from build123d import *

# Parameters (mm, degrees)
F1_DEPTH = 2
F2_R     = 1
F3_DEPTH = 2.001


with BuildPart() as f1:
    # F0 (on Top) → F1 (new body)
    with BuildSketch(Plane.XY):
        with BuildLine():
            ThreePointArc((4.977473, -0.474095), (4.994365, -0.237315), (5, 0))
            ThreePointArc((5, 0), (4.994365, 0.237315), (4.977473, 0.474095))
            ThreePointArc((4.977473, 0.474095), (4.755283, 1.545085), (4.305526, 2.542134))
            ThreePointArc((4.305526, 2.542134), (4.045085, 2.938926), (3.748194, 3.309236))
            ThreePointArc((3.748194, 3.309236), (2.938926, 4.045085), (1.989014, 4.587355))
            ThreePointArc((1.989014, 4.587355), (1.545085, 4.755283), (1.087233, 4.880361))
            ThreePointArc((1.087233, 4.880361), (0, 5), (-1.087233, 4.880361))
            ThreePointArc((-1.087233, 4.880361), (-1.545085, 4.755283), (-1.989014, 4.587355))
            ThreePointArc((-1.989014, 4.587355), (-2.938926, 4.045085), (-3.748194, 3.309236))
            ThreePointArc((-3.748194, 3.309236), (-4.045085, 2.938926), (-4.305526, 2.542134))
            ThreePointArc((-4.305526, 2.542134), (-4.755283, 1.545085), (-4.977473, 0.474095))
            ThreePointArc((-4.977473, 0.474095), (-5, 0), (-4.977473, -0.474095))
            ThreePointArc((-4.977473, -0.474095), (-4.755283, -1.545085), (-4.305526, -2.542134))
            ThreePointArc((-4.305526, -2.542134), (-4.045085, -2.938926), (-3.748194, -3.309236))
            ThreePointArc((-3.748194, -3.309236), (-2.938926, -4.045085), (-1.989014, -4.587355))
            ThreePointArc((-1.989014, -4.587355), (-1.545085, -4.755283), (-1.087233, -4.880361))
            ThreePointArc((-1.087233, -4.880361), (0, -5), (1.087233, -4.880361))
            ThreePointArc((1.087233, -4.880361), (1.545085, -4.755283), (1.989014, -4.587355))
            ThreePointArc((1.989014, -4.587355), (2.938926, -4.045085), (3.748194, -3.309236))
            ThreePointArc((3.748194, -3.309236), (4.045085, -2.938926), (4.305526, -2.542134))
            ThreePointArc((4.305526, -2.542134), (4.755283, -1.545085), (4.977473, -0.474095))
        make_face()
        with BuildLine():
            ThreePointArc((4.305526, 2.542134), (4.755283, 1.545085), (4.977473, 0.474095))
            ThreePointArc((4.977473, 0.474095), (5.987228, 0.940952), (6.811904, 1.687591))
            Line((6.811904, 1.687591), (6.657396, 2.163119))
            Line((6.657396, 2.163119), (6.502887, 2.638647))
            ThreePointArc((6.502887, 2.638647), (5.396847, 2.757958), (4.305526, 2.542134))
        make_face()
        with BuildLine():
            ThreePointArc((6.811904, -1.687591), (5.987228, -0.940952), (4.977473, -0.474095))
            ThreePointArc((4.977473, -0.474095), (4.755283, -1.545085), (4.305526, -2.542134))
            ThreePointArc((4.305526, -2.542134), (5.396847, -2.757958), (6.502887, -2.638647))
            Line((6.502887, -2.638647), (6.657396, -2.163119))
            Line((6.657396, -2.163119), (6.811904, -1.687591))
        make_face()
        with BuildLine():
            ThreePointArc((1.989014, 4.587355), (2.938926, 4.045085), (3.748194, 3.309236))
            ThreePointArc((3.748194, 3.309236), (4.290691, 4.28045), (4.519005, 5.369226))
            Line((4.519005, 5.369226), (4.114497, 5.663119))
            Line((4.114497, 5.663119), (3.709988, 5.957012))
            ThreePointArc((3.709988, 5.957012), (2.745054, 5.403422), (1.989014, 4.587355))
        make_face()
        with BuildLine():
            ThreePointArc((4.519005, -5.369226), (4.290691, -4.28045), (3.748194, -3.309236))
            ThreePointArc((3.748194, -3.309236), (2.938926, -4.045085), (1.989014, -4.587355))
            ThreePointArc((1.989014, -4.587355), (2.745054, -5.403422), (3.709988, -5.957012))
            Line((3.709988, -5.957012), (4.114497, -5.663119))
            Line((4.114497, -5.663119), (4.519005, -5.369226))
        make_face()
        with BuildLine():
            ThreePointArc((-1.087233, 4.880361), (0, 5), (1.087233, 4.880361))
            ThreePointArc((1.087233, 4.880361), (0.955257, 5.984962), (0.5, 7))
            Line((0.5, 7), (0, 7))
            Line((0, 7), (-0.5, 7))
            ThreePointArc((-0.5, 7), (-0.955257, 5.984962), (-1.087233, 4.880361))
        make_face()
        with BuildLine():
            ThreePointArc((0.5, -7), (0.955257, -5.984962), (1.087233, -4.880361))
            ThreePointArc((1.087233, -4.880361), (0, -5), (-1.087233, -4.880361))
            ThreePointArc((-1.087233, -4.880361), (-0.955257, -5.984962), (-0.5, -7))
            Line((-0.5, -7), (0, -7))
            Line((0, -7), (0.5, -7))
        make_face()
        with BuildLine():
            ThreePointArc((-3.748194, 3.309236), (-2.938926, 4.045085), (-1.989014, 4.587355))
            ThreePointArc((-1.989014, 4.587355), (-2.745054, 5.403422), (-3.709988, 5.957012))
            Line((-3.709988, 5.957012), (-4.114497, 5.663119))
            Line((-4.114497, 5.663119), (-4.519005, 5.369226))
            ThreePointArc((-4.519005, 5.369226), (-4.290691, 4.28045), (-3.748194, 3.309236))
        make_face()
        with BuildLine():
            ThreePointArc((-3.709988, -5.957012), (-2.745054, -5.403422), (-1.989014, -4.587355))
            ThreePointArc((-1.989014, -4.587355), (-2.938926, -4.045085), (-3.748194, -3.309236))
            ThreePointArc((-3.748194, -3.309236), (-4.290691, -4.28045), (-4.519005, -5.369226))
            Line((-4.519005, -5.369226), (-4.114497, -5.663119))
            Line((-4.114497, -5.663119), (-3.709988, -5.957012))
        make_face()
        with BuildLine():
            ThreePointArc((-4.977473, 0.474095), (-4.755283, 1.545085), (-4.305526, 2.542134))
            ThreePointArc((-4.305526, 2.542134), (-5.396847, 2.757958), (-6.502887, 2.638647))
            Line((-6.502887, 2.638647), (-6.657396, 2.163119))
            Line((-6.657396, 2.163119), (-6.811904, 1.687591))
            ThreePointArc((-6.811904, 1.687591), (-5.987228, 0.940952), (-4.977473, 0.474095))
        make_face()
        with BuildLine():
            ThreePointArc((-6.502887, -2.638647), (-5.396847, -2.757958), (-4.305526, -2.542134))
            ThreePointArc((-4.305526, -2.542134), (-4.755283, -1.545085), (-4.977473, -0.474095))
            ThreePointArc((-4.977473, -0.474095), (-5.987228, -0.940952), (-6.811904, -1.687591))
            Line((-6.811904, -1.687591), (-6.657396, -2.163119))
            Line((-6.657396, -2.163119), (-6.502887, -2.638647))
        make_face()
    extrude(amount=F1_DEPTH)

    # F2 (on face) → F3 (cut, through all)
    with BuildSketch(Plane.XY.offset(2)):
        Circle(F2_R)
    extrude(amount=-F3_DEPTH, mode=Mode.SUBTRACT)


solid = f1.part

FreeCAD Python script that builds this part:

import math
import FreeCAD as App
import Part
import Sketcher

V = App.Vector
Q = App.Units.Quantity

doc = App.newDocument("Part")
params = doc.addObject("Spreadsheet::Sheet", "Params")
for row, (alias, value) in enumerate([
    ("sketch1_width", "1 mm"),
    ("sketch1_length", "0.5 mm"),
    ("pad1_length", "2 mm"),
    ("sketch2_diameter", "2 mm"),
], start=1):
    params.set(f"A{row}", alias)
    params.set(f"B{row}", "=" + value)
    params.setAlias(f"B{row}", alias)

body = doc.addObject("PartDesign::Body", "Body")

# Sketch on XY plane
sketch1 = body.newObject("Sketcher::SketchObject", "Sketch")
sketch1.AttachmentSupport = (doc.getObject("XY_Plane"), [""])
sketch1.MapMode = "FlatFace"
sketch1.addGeometry(Part.ArcOfCircle(Part.Circle(V(-0.000142, 0.000003, 0), V(0, 0, 1), 5.000142), math.radians(-5.440782), math.radians(-0.000035)), False)
sketch1.addGeometry(Part.ArcOfCircle(Part.Circle(V(-0.000142, -0.000003, 0), V(0, 0, 1), 5.000142), math.radians(0.000035), math.radians(5.440782)), False)
sketch1.addGeometry(Part.ArcOfCircle(Part.Circle(V(3.951843, 4.017824, 0), V(0, 0, 1), 3.689164), math.radians(-73.858449), math.radians(-39.171415)), False)
sketch1.addGeometry(Part.LineSegment(V(6.811904, 1.687591, 0), V(6.657396, 2.163119, 0)), False)
sketch1.addGeometry(Part.LineSegment(V(6.657396, 2.163119, 0), V(6.502887, 2.638647, 0)), False)
sketch1.addGeometry(Part.ArcOfCircle(Part.Circle(V(5.558727, -0.927655, 0), V(0, 0, 1), 3.689166), math.radians(75.171433), math.radians(109.858452)), False)
sketch1.addGeometry(Part.ArcOfCircle(Part.Circle(V(-0.000029, -0.00002, 0), V(0, 0, 1), 5.000035), math.radians(30.559125), math.radians(41.440853)), False)
sketch1.addGeometry(Part.ArcOfCircle(Part.Circle(V(0.835485, 5.573326, 0), V(0, 0, 1), 3.68917), math.radians(-37.858427), math.radians(-3.171453)), False)
sketch1.addGeometry(Part.LineSegment(V(4.519005, 5.369226, 0), V(4.114497, 5.663119, 0)), False)
sketch1.addGeometry(Part.LineSegment(V(4.114497, 5.663119, 0), V(3.709988, 5.957012, 0)), False)
sketch1.addGeometry(Part.ArcOfCircle(Part.Circle(V(5.042379, 2.516833, 0), V(0, 0, 1), 3.689187), math.radians(111.17152), math.radians(145.858345)), False)
sketch1.addGeometry(Part.ArcOfCircle(Part.Circle(V(0.000024, 0.000068, 0), V(0, 0, 1), 4.999929), math.radians(66.559052), math.radians(77.440995)), False)
sketch1.addGeometry(Part.ArcOfCircle(Part.Circle(V(-2.599994, 5.000002, 0), V(0, 0, 1), 3.689167), math.radians(-1.858441), math.radians(32.828574)), False)
sketch1.addGeometry(Part.LineSegment(V(0.5, 7, 0), V(-0.5, 7, 0)), False)
sketch1.addGeometry(Part.ArcOfCircle(Part.Circle(V(2.599994, 5.000002, 0), V(0, 0, 1), 3.689167), math.radians(147.171426), math.radians(181.858441)), False)
sketch1.addGeometry(Part.ArcOfCircle(Part.Circle(V(-0.000024, 0.000068, 0), V(0, 0, 1), 4.999929), math.radians(102.559005), math.radians(113.440948)), False)
sketch1.addGeometry(Part.ArcOfCircle(Part.Circle(V(-5.042379, 2.516833, 0), V(0, 0, 1), 3.689187), math.radians(34.141655), math.radians(68.82848)), False)
sketch1.addGeometry(Part.LineSegment(V(-3.709988, 5.957012, 0), V(-4.114497, 5.663119, 0)), False)
sketch1.addGeometry(Part.LineSegment(V(-4.114497, 5.663119, 0), V(-4.519005, 5.369226, 0)), False)
sketch1.addGeometry(Part.ArcOfCircle(Part.Circle(V(-0.835485, 5.573326, 0), V(0, 0, 1), 3.68917), math.radians(-176.828547), math.radians(-142.141573)), False)
sketch1.addGeometry(Part.ArcOfCircle(Part.Circle(V(0.000029, -0.00002, 0), V(0, 0, 1), 5.000035), math.radians(138.559147), math.radians(149.440875)), False)
sketch1.addGeometry(Part.ArcOfCircle(Part.Circle(V(-5.558727, -0.927655, 0), V(0, 0, 1), 3.689166), math.radians(70.141548), math.radians(104.828567)), False)
sketch1.addGeometry(Part.LineSegment(V(-6.502887, 2.638647, 0), V(-6.657396, 2.163119, 0)), False)
sketch1.addGeometry(Part.LineSegment(V(-6.657396, 2.163119, 0), V(-6.811904, 1.687591, 0)), False)
sketch1.addGeometry(Part.ArcOfCircle(Part.Circle(V(-3.951843, 4.017824, 0), V(0, 0, 1), 3.689164), math.radians(-140.828585), math.radians(-106.141551)), False)
sketch1.addGeometry(Part.ArcOfCircle(Part.Circle(V(0.000078, 0, 0), V(0, 0, 1), 5.000078), math.radians(174.559183), math.radians(185.440817)), False)
sketch1.addGeometry(Part.ArcOfCircle(Part.Circle(V(-3.951843, -4.017824, 0), V(0, 0, 1), 3.689164), math.radians(106.141551), math.radians(140.828585)), False)
sketch1.addGeometry(Part.LineSegment(V(-6.811904, -1.687591, 0), V(-6.657396, -2.163119, 0)), False)
sketch1.addGeometry(Part.LineSegment(V(-6.657396, -2.163119, 0), V(-6.502887, -2.638647, 0)), False)
sketch1.addGeometry(Part.ArcOfCircle(Part.Circle(V(-5.558727, 0.927655, 0), V(0, 0, 1), 3.689166), math.radians(-104.828567), math.radians(-70.141548)), False)
sketch1.addGeometry(Part.ArcOfCircle(Part.Circle(V(0.000029, 0.00002, 0), V(0, 0, 1), 5.000035), math.radians(-149.440875), math.radians(-138.559147)), False)
sketch1.addGeometry(Part.ArcOfCircle(Part.Circle(V(-0.835485, -5.573326, 0), V(0, 0, 1), 3.68917), math.radians(142.141573), math.radians(176.828547)), False)
sketch1.addGeometry(Part.LineSegment(V(-4.519005, -5.369226, 0), V(-4.114497, -5.663119, 0)), False)
sketch1.addGeometry(Part.LineSegment(V(-4.114497, -5.663119, 0), V(-3.709988, -5.957012, 0)), False)
sketch1.addGeometry(Part.ArcOfCircle(Part.Circle(V(-5.042379, -2.516833, 0), V(0, 0, 1), 3.689187), math.radians(-68.82848), math.radians(-34.141655)), False)
sketch1.addGeometry(Part.ArcOfCircle(Part.Circle(V(-0.000024, -0.000068, 0), V(0, 0, 1), 4.999929), math.radians(-113.440948), math.radians(-102.559005)), False)
sketch1.addGeometry(Part.ArcOfCircle(Part.Circle(V(2.599994, -5.000002, 0), V(0, 0, 1), 3.689167), math.radians(178.141559), math.radians(212.828574)), False)
sketch1.addGeometry(Part.LineSegment(V(-0.5, -7, 0), V(0.5, -7, 0)), False)
sketch1.addGeometry(Part.ArcOfCircle(Part.Circle(V(-2.599994, -5.000002, 0), V(0, 0, 1), 3.689167), math.radians(-32.828574), math.radians(1.858441)), False)
sketch1.addGeometry(Part.ArcOfCircle(Part.Circle(V(0.000024, -0.000068, 0), V(0, 0, 1), 4.999929), math.radians(-77.440995), math.radians(-66.559052)), False)
sketch1.addGeometry(Part.ArcOfCircle(Part.Circle(V(5.042379, -2.516833, 0), V(0, 0, 1), 3.689187), math.radians(-145.858345), math.radians(-111.17152)), False)
sketch1.addGeometry(Part.LineSegment(V(3.709988, -5.957012, 0), V(4.114497, -5.663119, 0)), False)
sketch1.addGeometry(Part.LineSegment(V(4.114497, -5.663119, 0), V(4.519005, -5.369226, 0)), False)
sketch1.addGeometry(Part.ArcOfCircle(Part.Circle(V(0.835485, -5.573326, 0), V(0, 0, 1), 3.68917), math.radians(3.171453), math.radians(37.858427)), False)
sketch1.addGeometry(Part.ArcOfCircle(Part.Circle(V(-0.000029, 0.00002, 0), V(0, 0, 1), 5.000035), math.radians(-41.440853), math.radians(-30.559125)), False)
sketch1.addGeometry(Part.ArcOfCircle(Part.Circle(V(5.558727, 0.927655, 0), V(0, 0, 1), 3.689166), math.radians(-109.858452), math.radians(-75.171433)), False)
sketch1.addGeometry(Part.LineSegment(V(6.502887, -2.638647, 0), V(6.657396, -2.163119, 0)), False)
sketch1.addGeometry(Part.LineSegment(V(6.657396, -2.163119, 0), V(6.811904, -1.687591, 0)), False)
sketch1.addGeometry(Part.ArcOfCircle(Part.Circle(V(3.951843, -4.017824, 0), V(0, 0, 1), 3.689164), math.radians(39.171415), math.radians(73.858449)), False)
sketch1.addConstraint(Sketcher.Constraint("Tangent", 0, 2, 1, 1))
sketch1.addConstraint(Sketcher.Constraint("Coincident", 1, 2, 2, 1))
sketch1.addConstraint(Sketcher.Constraint("Coincident", 2, 2, 3, 1))
sketch1.addConstraint(Sketcher.Constraint("Coincident", 3, 2, 4, 1))
sketch1.addConstraint(Sketcher.Constraint("Coincident", 4, 2, 5, 1))
sketch1.addConstraint(Sketcher.Constraint("Coincident", 5, 2, 6, 1))
sketch1.addConstraint(Sketcher.Constraint("Coincident", 6, 2, 7, 1))
sketch1.addConstraint(Sketcher.Constraint("Coincident", 7, 2, 8, 1))
sketch1.addConstraint(Sketcher.Constraint("Coincident", 8, 2, 9, 1))
sketch1.addConstraint(Sketcher.Constraint("Coincident", 9, 2, 10, 1))
sketch1.addConstraint(Sketcher.Constraint("Coincident", 10, 2, 11, 1))
sketch1.addConstraint(Sketcher.Constraint("Coincident", 11, 2, 12, 1))
sketch1.addConstraint(Sketcher.Constraint("Coincident", 12, 2, 13, 1))
sketch1.addConstraint(Sketcher.Constraint("Coincident", 13, 2, 14, 1))
sketch1.addConstraint(Sketcher.Constraint("Coincident", 14, 2, 15, 1))
sketch1.addConstraint(Sketcher.Constraint("Coincident", 15, 2, 16, 1))
sketch1.addConstraint(Sketcher.Constraint("Coincident", 16, 2, 17, 1))
sketch1.addConstraint(Sketcher.Constraint("Coincident", 17, 2, 18, 1))
sketch1.addConstraint(Sketcher.Constraint("Coincident", 18, 2, 19, 1))
sketch1.addConstraint(Sketcher.Constraint("Coincident", 19, 2, 20, 1))
sketch1.addConstraint(Sketcher.Constraint("Coincident", 20, 2, 21, 1))
sketch1.addConstraint(Sketcher.Constraint("Coincident", 21, 2, 22, 1))
sketch1.addConstraint(Sketcher.Constraint("Coincident", 22, 2, 23, 1))
sketch1.addConstraint(Sketcher.Constraint("Coincident", 23, 2, 24, 1))
sketch1.addConstraint(Sketcher.Constraint("Coincident", 24, 2, 25, 1))
sketch1.addConstraint(Sketcher.Constraint("Coincident", 25, 2, 26, 1))
sketch1.addConstraint(Sketcher.Constraint("Coincident", 26, 2, 27, 1))
sketch1.addConstraint(Sketcher.Constraint("Coincident", 27, 2, 28, 1))
sketch1.addConstraint(Sketcher.Constraint("Coincident", 28, 2, 29, 1))
sketch1.addConstraint(Sketcher.Constraint("Coincident", 29, 2, 30, 1))
sketch1.addConstraint(Sketcher.Constraint("Coincident", 30, 2, 31, 1))
sketch1.addConstraint(Sketcher.Constraint("Coincident", 31, 2, 32, 1))
sketch1.addConstraint(Sketcher.Constraint("Coincident", 32, 2, 33, 1))
sketch1.addConstraint(Sketcher.Constraint("Coincident", 33, 2, 34, 1))
sketch1.addConstraint(Sketcher.Constraint("Coincident", 34, 2, 35, 1))
sketch1.addConstraint(Sketcher.Constraint("Coincident", 35, 2, 36, 1))
sketch1.addConstraint(Sketcher.Constraint("Coincident", 36, 2, 37, 1))
sketch1.addConstraint(Sketcher.Constraint("Coincident", 37, 2, 38, 1))
sketch1.addConstraint(Sketcher.Constraint("Coincident", 38, 2, 39, 1))
sketch1.addConstraint(Sketcher.Constraint("Coincident", 39, 2, 40, 1))
sketch1.addConstraint(Sketcher.Constraint("Coincident", 40, 2, 41, 1))
sketch1.addConstraint(Sketcher.Constraint("Coincident", 41, 2, 42, 1))
sketch1.addConstraint(Sketcher.Constraint("Coincident", 42, 2, 43, 1))
sketch1.addConstraint(Sketcher.Constraint("Coincident", 43, 2, 44, 1))
sketch1.addConstraint(Sketcher.Constraint("Coincident", 44, 2, 45, 1))
sketch1.addConstraint(Sketcher.Constraint("Coincident", 45, 2, 46, 1))
sketch1.addConstraint(Sketcher.Constraint("Coincident", 46, 2, 47, 1))
sketch1.addConstraint(Sketcher.Constraint("Coincident", 47, 2, 48, 1))
sketch1.addConstraint(Sketcher.Constraint("Coincident", 48, 2, 0, 1))
sketch1.addConstraint(Sketcher.Constraint("Horizontal", 13))
sketch1.addConstraint(Sketcher.Constraint("Horizontal", 37))
sketch1.addConstraint(Sketcher.Constraint("Equal", 0, 1))
sketch1.addConstraint(Sketcher.Constraint("Equal", 2, 5))
sketch1.addConstraint(Sketcher.Constraint("Equal", 5, 12))
sketch1.addConstraint(Sketcher.Constraint("Equal", 12, 14))
sketch1.addConstraint(Sketcher.Constraint("Equal", 11, 15))
sketch1.addConstraint(Sketcher.Constraint("Equal", 10, 16))
sketch1.addConstraint(Sketcher.Constraint("Equal", 7, 19))
sketch1.addConstraint(Sketcher.Constraint("Equal", 6, 20))
sketch1.addConstraint(Sketcher.Constraint("Equal", 14, 21))
sketch1.addConstraint(Sketcher.Constraint("Equal", 21, 24))
sketch1.addConstraint(Sketcher.Constraint("Equal", 24, 26))
sketch1.addConstraint(Sketcher.Constraint("Equal", 26, 29))
sketch1.addConstraint(Sketcher.Constraint("Equal", 20, 30))
sketch1.addConstraint(Sketcher.Constraint("Equal", 19, 31))
sketch1.addConstraint(Sketcher.Constraint("Equal", 16, 34))
sketch1.addConstraint(Sketcher.Constraint("Equal", 15, 35))
sketch1.addConstraint(Sketcher.Constraint("Equal", 29, 36))
sketch1.addConstraint(Sketcher.Constraint("Equal", 36, 38))
sketch1.addConstraint(Sketcher.Constraint("Equal", 35, 39))
sketch1.addConstraint(Sketcher.Constraint("Equal", 34, 40))
sketch1.addConstraint(Sketcher.Constraint("Equal", 31, 43))
sketch1.addConstraint(Sketcher.Constraint("Equal", 30, 44))
sketch1.addConstraint(Sketcher.Constraint("Equal", 38, 45))
sketch1.addConstraint(Sketcher.Constraint("Equal", 45, 48))
sketch1.addConstraint(Sketcher.Constraint("Symmetric", 2, 3, 26, 3, -1, 1))
sketch1.addConstraint(Sketcher.Constraint("Symmetric", 5, 3, 29, 3, -1, 1))
sketch1.addConstraint(Sketcher.Constraint("Symmetric", 6, 3, 30, 3, -1, 1))
sketch1.addConstraint(Sketcher.Constraint("Symmetric", 7, 3, 31, 3, -1, 1))
sketch1.addConstraint(Sketcher.Constraint("Symmetric", 10, 3, 34, 3, -1, 1))
sketch1.addConstraint(Sketcher.Constraint("Symmetric", 11, 3, 35, 3, -1, 1))
sketch1.addConstraint(Sketcher.Constraint("Symmetric", 12, 3, 36, 3, -1, 1))
sketch1.addConstraint(Sketcher.Constraint("Symmetric", 14, 3, 38, 3, -1, 1))
sketch1.addConstraint(Sketcher.Constraint("Symmetric", 15, 3, 39, 3, -1, 1))
sketch1.addConstraint(Sketcher.Constraint("Symmetric", 16, 3, 40, 3, -1, 1))
sketch1.addConstraint(Sketcher.Constraint("Symmetric", 19, 3, 43, 3, -1, 1))
sketch1.addConstraint(Sketcher.Constraint("Symmetric", 20, 3, 44, 3, -1, 1))
sketch1.addConstraint(Sketcher.Constraint("Symmetric", 21, 3, 45, 3, -1, 1))
sketch1.addConstraint(Sketcher.Constraint("Symmetric", 24, 3, 48, 3, -1, 1))
sketch1.addConstraint(Sketcher.Constraint("Symmetric", 3, 2, 27, 2, -1, 1))
sketch1.addConstraint(Sketcher.Constraint("Symmetric", 8, 2, 32, 2, -1, 1))
sketch1.addConstraint(Sketcher.Constraint("Symmetric", 17, 2, 41, 2, -1, 1))
sketch1.addConstraint(Sketcher.Constraint("Symmetric", 22, 2, 46, 2, -1, 1))
sketch1.addConstraint(Sketcher.Constraint("Symmetric", 12, 3, 14, 3, -2))
sketch1.addConstraint(Sketcher.Constraint("Symmetric", 11, 3, 15, 3, -2))
sketch1.addConstraint(Sketcher.Constraint("Symmetric", 10, 3, 16, 3, -2))
sketch1.addConstraint(Sketcher.Constraint("Symmetric", 7, 3, 19, 3, -2))
sketch1.addConstraint(Sketcher.Constraint("Symmetric", 6, 3, 20, 3, -2))
sketch1.addConstraint(Sketcher.Constraint("Symmetric", 5, 3, 21, 3, -2))
sketch1.addConstraint(Sketcher.Constraint("Symmetric", 2, 3, 24, 3, -2))
sketch1.addConstraint(Sketcher.Constraint("Symmetric", 8, 2, 17, 2, -2))
sketch1.addConstraint(Sketcher.Constraint("Symmetric", 3, 2, 22, 2, -2))
sketch1.addConstraint(Sketcher.Constraint("PointOnObject", 25, 3, -1))
sketch1.addConstraint(Sketcher.Constraint("PointOnObject", 0, 2, -1))
sketch1.addConstraint(Sketcher.Constraint("Parallel", 3, 4))
sketch1.addConstraint(Sketcher.Constraint("Parallel", 8, 9))
sketch1.addConstraint(Sketcher.Constraint("Parallel", 17, 18))
sketch1.addConstraint(Sketcher.Constraint("Parallel", 22, 23))
sketch1.addConstraint(Sketcher.Constraint("Parallel", 4, 27))
sketch1.addConstraint(Sketcher.Constraint("Parallel", 27, 28))
sketch1.addConstraint(Sketcher.Constraint("Parallel", 9, 32))
sketch1.addConstraint(Sketcher.Constraint("Parallel", 32, 33))
sketch1.addConstraint(Sketcher.Constraint("Parallel", 18, 41))
sketch1.addConstraint(Sketcher.Constraint("Parallel", 41, 42))
sketch1.addConstraint(Sketcher.Constraint("Parallel", 23, 46))
sketch1.addConstraint(Sketcher.Constraint("Parallel", 46, 47))
sketch1.addConstraint(Sketcher.Constraint("Horizontal", 9, 2, 16, 2))
sketch1.addConstraint(Sketcher.Constraint("Horizontal", 4, 2, 21, 2))
sketch1.addConstraint(Sketcher.Constraint("Horizontal", 1, 2, 24, 2))
sketch1.addConstraint(Sketcher.Constraint("Horizontal", 25, 2, 48, 2))
sketch1.addConstraint(Sketcher.Constraint("Vertical", 13, 2, 36, 2))
sketch1.addConstraint(Sketcher.Constraint("Equal", 3, 4))
sketch1.addConstraint(Sketcher.Constraint("Equal", 4, 8))
sketch1.addConstraint(Sketcher.Constraint("Equal", 8, 9))
sketch1.addConstraint(Sketcher.Constraint("DistanceX", 13, 2, 13, 1, Q("1 mm")))
sketch1.addConstraint(Sketcher.Constraint("Angle", 9, Q("143.999999 deg")))
sketch1.addConstraint(Sketcher.Constraint("DistanceY", -1, 1, 12, 3, Q("5.000002 mm")))
sketch1.addConstraint(Sketcher.Constraint("DistanceX", -1, 1, 0, 2, Q("5 mm")))
sketch1.addConstraint(Sketcher.Constraint("DistanceY", -1, 1, 12, 2, Q("7 mm")))
sketch1.addConstraint(Sketcher.Constraint("Distance", 3, Q("0.5 mm")))
sketch1.addConstraint(Sketcher.Constraint("Radius", 7, Q("3.68917 mm")))
sketch1.addConstraint(Sketcher.Constraint("Radius", 11, Q("4.999929 mm")))
sketch1.addConstraint(Sketcher.Constraint("Radius", 25, Q("5.000078 mm")))
sketch1.addConstraint(Sketcher.Constraint("Radius", 0, Q("5.000142 mm")))
sketch1.addConstraint(Sketcher.Constraint("Radius", 2, Q("3.689164 mm")))
sketch1.addConstraint(Sketcher.Constraint("Radius", 6, Q("5.000035 mm")))
sketch1.addConstraint(Sketcher.Constraint("Radius", 10, Q("3.689187 mm")))
sketch1.addConstraint(Sketcher.Constraint("DistanceX", -1, 1, 10, 3, Q("5.042379 mm")))
sketch1.addConstraint(Sketcher.Constraint("DistanceY", -1, 1, 2, 2, Q("1.687591 mm")))
sketch1.addConstraint(Sketcher.Constraint("DistanceY", -1, 1, 3, 2, Q("2.163119 mm")))
sketch1.addConstraint(Sketcher.Constraint("DistanceY", -1, 1, 8, 2, Q("5.663119 mm")))
sketch1.addConstraint(Sketcher.Constraint("DistanceX", -1, 1, 9, 2, Q("3.709988 mm")))
sketch1.addConstraint(Sketcher.Constraint("DistanceY", -1, 1, 11, 2, Q("4.880361 mm")))
sketch1.addConstraint(Sketcher.Constraint("DistanceX", -1, 1, 2, 3, Q("3.951843 mm")))
sketch1.addConstraint(Sketcher.Constraint("DistanceY", -1, 1, 2, 3, Q("4.017824 mm")))
sketch1.addConstraint(Sketcher.Constraint("DistanceX", -1, 1, 5, 3, Q("5.558727 mm")))
sketch1.addConstraint(Sketcher.Constraint("DistanceX", -1, 1, 7, 3, Q("0.835485 mm")))
sketch1.addConstraint(Sketcher.Constraint("DistanceX", -1, 1, 5, 2, Q("4.305526 mm")))
sketch1.addConstraint(Sketcher.Constraint("DistanceX", -1, 1, 6, 2, Q("3.748194 mm")))
sketch1.addConstraint(Sketcher.Constraint("DistanceX", -1, 1, 10, 2, Q("1.989014 mm")))
sketch1.setExpression("Constraints[124]", "Params.sketch1_width")
sketch1.setExpression("Constraints[129]", "Params.sketch1_length")
pad1 = body.newObject("PartDesign::Pad", "Pad")
pad1.Profile = sketch1
pad1.setExpression("Length", "Params.pad1_length")

# Sketch on XY plane
sketch2 = body.newObject("Sketcher::SketchObject", "Sketch001")
sketch2.AttachmentSupport = (doc.getObject("XY_Plane"), [""])
sketch2.MapMode = "FlatFace"
sketch2.AttachmentOffset = App.Placement(V(0, 0, 2), App.Rotation())
sketch2.addGeometry(Part.Circle(V(0, 0, 0), V(0, 0, 1), 1), False)
sketch2.addConstraint(Sketcher.Constraint("Coincident", 0, 3, -1, 1))
sketch2.addConstraint(Sketcher.Constraint("Diameter", 0, Q("2 mm")))
sketch2.setExpression("Constraints[1]", "Params.sketch2_diameter")
pocket1 = body.newObject("PartDesign::Pocket", "Pocket")
pocket1.Profile = sketch2
pocket1.Type = "ThroughAll"

doc.recompute()
